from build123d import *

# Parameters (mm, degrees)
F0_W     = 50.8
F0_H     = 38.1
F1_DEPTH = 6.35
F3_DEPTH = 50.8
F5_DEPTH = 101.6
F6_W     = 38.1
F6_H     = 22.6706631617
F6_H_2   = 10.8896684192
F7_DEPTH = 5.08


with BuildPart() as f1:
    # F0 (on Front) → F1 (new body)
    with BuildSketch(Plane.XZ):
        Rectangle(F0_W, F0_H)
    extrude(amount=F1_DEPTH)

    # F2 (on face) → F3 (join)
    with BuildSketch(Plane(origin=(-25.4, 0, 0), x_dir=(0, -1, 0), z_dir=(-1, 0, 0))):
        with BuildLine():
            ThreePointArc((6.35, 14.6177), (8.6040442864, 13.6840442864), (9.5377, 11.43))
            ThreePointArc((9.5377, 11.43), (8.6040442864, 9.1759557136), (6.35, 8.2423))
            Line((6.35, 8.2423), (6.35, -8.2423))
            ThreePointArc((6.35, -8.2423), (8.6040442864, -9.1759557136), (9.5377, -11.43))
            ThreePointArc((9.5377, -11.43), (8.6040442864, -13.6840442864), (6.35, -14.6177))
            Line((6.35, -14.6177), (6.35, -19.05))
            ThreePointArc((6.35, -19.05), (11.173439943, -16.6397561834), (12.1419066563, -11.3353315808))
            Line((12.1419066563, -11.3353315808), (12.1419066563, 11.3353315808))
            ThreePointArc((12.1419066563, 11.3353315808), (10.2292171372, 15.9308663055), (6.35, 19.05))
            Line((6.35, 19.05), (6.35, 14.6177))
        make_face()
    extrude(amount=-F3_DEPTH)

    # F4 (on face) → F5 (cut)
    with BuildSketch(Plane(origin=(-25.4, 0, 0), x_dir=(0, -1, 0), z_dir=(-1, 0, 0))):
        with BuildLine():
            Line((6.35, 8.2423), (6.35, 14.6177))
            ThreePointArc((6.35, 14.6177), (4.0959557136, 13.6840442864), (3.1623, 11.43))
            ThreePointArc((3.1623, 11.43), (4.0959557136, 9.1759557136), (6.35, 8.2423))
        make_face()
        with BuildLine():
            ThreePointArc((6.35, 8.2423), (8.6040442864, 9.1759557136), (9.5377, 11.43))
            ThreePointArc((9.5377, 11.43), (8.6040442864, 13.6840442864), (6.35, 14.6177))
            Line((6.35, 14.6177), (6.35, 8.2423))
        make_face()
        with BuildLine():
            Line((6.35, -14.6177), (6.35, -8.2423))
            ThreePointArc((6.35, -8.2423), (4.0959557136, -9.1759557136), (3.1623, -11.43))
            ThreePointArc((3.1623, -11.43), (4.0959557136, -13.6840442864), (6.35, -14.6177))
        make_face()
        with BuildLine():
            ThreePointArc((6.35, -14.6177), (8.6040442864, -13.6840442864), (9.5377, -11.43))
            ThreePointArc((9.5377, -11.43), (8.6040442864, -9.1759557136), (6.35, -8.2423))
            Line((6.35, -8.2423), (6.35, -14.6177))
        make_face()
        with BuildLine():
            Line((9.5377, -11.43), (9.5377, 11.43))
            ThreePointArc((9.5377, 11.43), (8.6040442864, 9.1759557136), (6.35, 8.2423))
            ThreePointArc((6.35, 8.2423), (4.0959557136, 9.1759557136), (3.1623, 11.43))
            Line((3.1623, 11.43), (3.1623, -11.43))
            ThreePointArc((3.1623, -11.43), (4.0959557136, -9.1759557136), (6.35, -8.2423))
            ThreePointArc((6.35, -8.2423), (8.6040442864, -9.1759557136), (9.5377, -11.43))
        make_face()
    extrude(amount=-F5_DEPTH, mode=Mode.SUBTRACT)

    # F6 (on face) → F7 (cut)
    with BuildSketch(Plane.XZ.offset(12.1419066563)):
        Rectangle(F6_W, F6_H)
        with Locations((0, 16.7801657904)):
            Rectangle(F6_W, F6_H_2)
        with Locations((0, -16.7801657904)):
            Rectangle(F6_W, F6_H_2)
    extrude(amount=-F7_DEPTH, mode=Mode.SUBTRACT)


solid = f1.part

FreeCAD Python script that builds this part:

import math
import FreeCAD as App
import Part
import Sketcher

V = App.Vector
Q = App.Units.Quantity


def add_polygon(sketch, points):
    """Adds a closed chain of lines whose ends are joined by coincident constraints."""
    first, n = sketch.GeometryCount, len(points)
    for a, b in zip(points, points[1:] + points[:1]):
        sketch.addGeometry(Part.LineSegment(App.Vector(*a, 0), App.Vector(*b, 0)), False)
    for i in range(n):
        sketch.addConstraint(Sketcher.Constraint("Coincident", first + i, 2, first + (i + 1) % n, 1))

doc = App.newDocument("Part")
body = doc.addObject("PartDesign::Body", "Body")

# Sketch on XZ plane
sketch1 = doc.addObject("Sketcher::SketchObject", "Sketch")
body.addObject(sketch1)
sketch1.AttachmentSupport = (doc.XZ_Plane, [""])
sketch1.MapMode = "FlatFace"
add_polygon(sketch1, [(-25, 19), (-25, -19), (25, -19), (25, 19)])  # lines 0-3
sketch1.addConstraint(Sketcher.Constraint("Vertical", 0))
sketch1.addConstraint(Sketcher.Constraint("Horizontal", 1))
sketch1.addConstraint(Sketcher.Constraint("Vertical", 2))
sketch1.addConstraint(Sketcher.Constraint("Horizontal", 3))
sketch1.addConstraint(Sketcher.Constraint("Symmetric", 0, 2, 2, 2, -1, 1))
sketch1.addConstraint(Sketcher.Constraint("DistanceX", 1, 1, 1, 2, Q("2 in")))
sketch1.addConstraint(Sketcher.Constraint("DistanceY", 0, 2, 0, 1, Q("1.5 in")))
pad1 = doc.addObject("PartDesign::Pad", "Pad")
body.addObject(pad1)
pad1.Profile = sketch1
pad1.Length = Q("0.25 in")

# Sketch on YZ plane
sketch2 = doc.addObject("Sketcher::SketchObject", "Sketch001")
body.addObject(sketch2)
sketch2.AttachmentSupport = (doc.YZ_Plane, [""])
sketch2.MapMode = "FlatFace"
sketch2.AttachmentOffset = App.Placement(V(0, 0, -1 * 25.4), App.Rotation())
sketch2.addGeometry(Part.ArcOfCircle(Part.Circle(V(-6.3, 11.4, 0), V(0, 0, 1), 3.2), math.radians(90), math.radians(180)), False)
sketch2.addGeometry(Part.ArcOfCircle(Part.Circle(V(-6.3, 11.4, 0), V(0, 0, 1), 3.2), math.radians(180), math.radians(270)), False)
sketch2.addGeometry(Part.LineSegment(V(-6.3, 8.2, 0), V(-6.3, -8.2, 0)), False)
sketch2.addGeometry(Part.ArcOfCircle(Part.Circle(V(-6.3, -11.4, 0), V(0, 0, 1), 3.2), math.radians(90), math.radians(180)), False)
sketch2.addGeometry(Part.ArcOfCircle(Part.Circle(V(-6.3, -11.4, 0), V(0, 0, 1), 3.2), math.radians(180), math.radians(270)), False)
sketch2.addGeometry(Part.LineSegment(V(-6.3, -14.6, 0), V(-6.3, -19.1, 0)), False)
sketch2.addGeometry(Part.ArcOfCircle(Part.Circle(V(-6.3, -13, 0), V(0, 0, 1), 6), math.radians(164), math.radians(270)), False)
sketch2.addGeometry(Part.LineSegment(V(-12.1, -11.3, 0), V(-12.1, 11.3, 0)), False)
sketch2.addGeometry(Part.ArcOfCircle(Part.Circle(V(-2.2, 9.9, 0), V(0, 0, 1), 10.1), math.radians(115), math.radians(172)), False)
sketch2.addGeometry(Part.LineSegment(V(-6.3, 19.1, 0), V(-6.3, 14.6, 0)), False)
sketch2.addConstraint(Sketcher.Constraint("Tangent", 0, 2, 1, 1))
sketch2.addConstraint(Sketcher.Constraint("Coincident", 1, 2, 2, 1))
sketch2.addConstraint(Sketcher.Constraint("Coincident", 2, 2, 3, 1))
sketch2.addConstraint(Sketcher.Constraint("Tangent", 3, 2, 4, 1))
sketch2.addConstraint(Sketcher.Constraint("Coincident", 4, 2, 5, 1))
sketch2.addConstraint(Sketcher.Constraint("Coincident", 5, 2, 6, 2))
sketch2.addConstraint(Sketcher.Constraint("Coincident", 6, 1, 7, 1))
sketch2.addConstraint(Sketcher.Constraint("Coincident", 7, 2, 8, 2))
sketch2.addConstraint(Sketcher.Constraint("Coincident", 8, 1, 9, 1))
sketch2.addConstraint(Sketcher.Constraint("Coincident", 9, 2, 0, 1))
sketch2.addConstraint(Sketcher.Constraint("Vertical", 2))
sketch2.addConstraint(Sketcher.Constraint("Vertical", 5))
sketch2.addConstraint(Sketcher.Constraint("Vertical", 7))
sketch2.addConstraint(Sketcher.Constraint("Vertical", 9))
sketch2.addConstraint(Sketcher.Constraint("Equal", 0, 1))
sketch2.addConstraint(Sketcher.Constraint("Equal", 1, 3))
sketch2.addConstraint(Sketcher.Constraint("Equal", 3, 4))
sketch2.addConstraint(Sketcher.Constraint("Symmetric", 0, 3, 3, 3, -1))
sketch2.addConstraint(Sketcher.Constraint("Symmetric", 5, 2, 8, 1, -1))
sketch2.addConstraint(Sketcher.Constraint("Horizontal", 1, 3, 0, 2))
sketch2.addConstraint(Sketcher.Constraint("Horizontal", 4, 3, 3, 2))
sketch2.addConstraint(Sketcher.Constraint("Vertical", 4, 3, 6, 3))
sketch2.addConstraint(Sketcher.Constraint("Vertical", 6, 3, 1, 2))
sketch2.addConstraint(Sketcher.Constraint("Vertical", 2, 2, 4, 2))
sketch2.addConstraint(Sketcher.Constraint("Radius", 0, Q("0.1255 in")))
sketch2.addConstraint(Sketcher.Constraint("DistanceY", 3, 3, 0, 3, Q("0.9 in")))
sketch2.addConstraint(Sketcher.Constraint("DistanceY", 5, 2, 3, 3, Q("0.3 in")))
sketch2.addConstraint(Sketcher.Constraint("DistanceX", 0, 3, -1, 1, Q("0.25 in")))
sketch2.addConstraint(Sketcher.Constraint("Radius", 8, 10.075919))
sketch2.addConstraint(Sketcher.Constraint("Radius", 6, 6.031516))
sketch2.addConstraint(Sketcher.Constraint("DistanceY", 7, 1, 7, 2, 22.670663))
sketch2.addConstraint(Sketcher.Constraint("DistanceY", 6, 1, -1, 1, 11.335332))
pad2 = doc.addObject("PartDesign::Pad", "Pad001")
body.addObject(pad2)
pad2.Profile = sketch2
pad2.Length = Q("2 in")

# Sketch on YZ plane
sketch3 = doc.addObject("Sketcher::SketchObject", "Sketch002")
body.addObject(sketch3)
sketch3.AttachmentSupport = (doc.YZ_Plane, [""])
sketch3.MapMode = "FlatFace"
sketch3.AttachmentOffset = App.Placement(V(0, 0, -1 * 25.4), App.Rotation())
sketch3.addGeometry(Part.ArcOfCircle(Part.Circle(V(-6.3, 11.4, 0), V(0, 0, 1), 3.2), math.radians(90), math.radians(180)), False)
sketch3.addGeometry(Part.ArcOfCircle(Part.Circle(V(-6.3, 11.4, 0), V(0, 0, 1), 3.2), math.radians(0), math.radians(90)), False)
sketch3.addGeometry(Part.LineSegment(V(-3.2, 11.4, 0), V(-3.2, -11.4, 0)), False)
sketch3.addGeometry(Part.ArcOfCircle(Part.Circle(V(-6.3, -11.4, 0), V(0, 0, 1), 3.2), math.radians(-90), math.radians(0)), False)
sketch3.addGeometry(Part.ArcOfCircle(Part.Circle(V(-6.3, -11.4, 0), V(0, 0, 1), 3.2), math.radians(180), math.radians(270)), False)
sketch3.addGeometry(Part.LineSegment(V(-9.5, -11.4, 0), V(-9.5, 11.4, 0)), False)
sketch3.addConstraint(Sketcher.Constraint("Tangent", 0, 1, 1, 2))
sketch3.addConstraint(Sketcher.Constraint("Tangent", 1, 1, 2, 1))
sketch3.addConstraint(Sketcher.Constraint("Tangent", 2, 2, 3, 2))
sketch3.addConstraint(Sketcher.Constraint("Tangent", 3, 1, 4, 2))
sketch3.addConstraint(Sketcher.Constraint("Tangent", 4, 1, 5, 1))
sketch3.addConstraint(Sketcher.Constraint("Tangent", 5, 2, 0, 2))
sketch3.addConstraint(Sketcher.Constraint("Vertical", 2))
sketch3.addConstraint(Sketcher.Constraint("Vertical", 5))
sketch3.addConstraint(Sketcher.Constraint("Equal", 0, 1))
sketch3.addConstraint(Sketcher.Constraint("Equal", 1, 3))
sketch3.addConstraint(Sketcher.Constraint("Symmetric", 0, 1, 3, 1, -1))
sketch3.addConstraint(Sketcher.Constraint("Vertical", 4, 3, 0, 1))
sketch3.addConstraint(Sketcher.Constraint("DistanceY", 2, 2, 2, 1, Q("0.9 in")))
sketch3.addConstraint(Sketcher.Constraint("Radius", 0, Q("0.1255 in")))
sketch3.addConstraint(Sketcher.Constraint("DistanceX", 0, 3, -1, 1, Q("0.25 in")))
pocket1 = doc.addObject("PartDesign::Pocket", "Pocket")
body.addObject(pocket1)
pocket1.Profile = sketch3
pocket1.Length = Q("4 in")
pocket1.Reversed = True

# Sketch on XZ plane
sketch4 = doc.addObject("Sketcher::SketchObject", "Sketch003")
body.addObject(sketch4)
sketch4.AttachmentSupport = (doc.XZ_Plane, [""])
sketch4.MapMode = "FlatFace"
sketch4.AttachmentOffset = App.Placement(V(0, 0, 12.141907), App.Rotation())
add_polygon(sketch4, [(19, 22), (-19, 22), (-19, -22), (19, -22)])  # lines 0-3
sketch4.addConstraint(Sketcher.Constraint("Horizontal", 0))
sketch4.addConstraint(Sketcher.Constraint("Vertical", 1))
sketch4.addConstraint(Sketcher.Constraint("Horizontal", 2))
sketch4.addConstraint(Sketcher.Constraint("Vertical", 3))
sketch4.addConstraint(Sketcher.Constraint("Symmetric", 0, 2, 2, 2, -1, 1))
sketch4.addConstraint(Sketcher.Constraint("DistanceX", 0, 2, 0, 1, Q("1.5 in")))
sketch4.addConstraint(Sketcher.Constraint("DistanceY", 1, 2, 1, 1, Q("1.75 in")))
pocket2 = doc.addObject("PartDesign::Pocket", "Pocket001")
body.addObject(pocket2)
pocket2.Profile = sketch4
pocket2.Length = Q("0.2 in")

doc.recompute()
